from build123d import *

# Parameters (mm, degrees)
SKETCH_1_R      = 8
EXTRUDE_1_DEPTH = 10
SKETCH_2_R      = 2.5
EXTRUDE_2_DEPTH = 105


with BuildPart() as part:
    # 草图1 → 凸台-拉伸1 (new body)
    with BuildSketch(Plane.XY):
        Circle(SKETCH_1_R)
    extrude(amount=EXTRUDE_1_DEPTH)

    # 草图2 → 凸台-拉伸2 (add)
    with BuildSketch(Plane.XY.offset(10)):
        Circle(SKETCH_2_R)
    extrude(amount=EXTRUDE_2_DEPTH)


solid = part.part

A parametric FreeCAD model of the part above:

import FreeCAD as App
import Part
import Sketcher
Q = App.Units.Quantity

doc = App.newDocument("Part")
body = doc.addObject("PartDesign::Body", "Body")

# Sketch on XY plane
sketch1 = doc.addObject("Sketcher::SketchObject", "Sketch")
body.addObject(sketch1)
sketch1.AttachmentSupport = (doc.XY_Plane, [""])
sketch1.MapMode = "FlatFace"
sketch1.addGeometry(Part.Circle(App.Vector(0, 0, 0), App.Vector(0, 0, 1), 8), False)
sketch1.addConstraint(Sketcher.Constraint("Coincident", 0, 3, -1, 1))
sketch1.addConstraint(Sketcher.Constraint("Diameter", 0, Q("16 mm")))
pad1 = doc.addObject("PartDesign::Pad", "Pad")
body.addObject(pad1)
pad1.Profile = sketch1
pad1.Length = 10

# Sketch on XY plane
sketch2 = doc.addObject("Sketcher::SketchObject", "Sketch001")
body.addObject(sketch2)
sketch2.AttachmentSupport = (doc.XY_Plane, [""])
sketch2.MapMode = "FlatFace"
sketch2.AttachmentOffset = App.Placement(App.Vector(0, 0, 10), App.Rotation())
sketch2.addGeometry(Part.Circle(App.Vector(0, 0, 0), App.Vector(0, 0, 1), 2.5), False)
sketch2.addConstraint(Sketcher.Constraint("Coincident", 0, 3, -1, 1))
sketch2.addConstraint(Sketcher.Constraint("Diameter", 0, Q("5 mm")))
pad2 = doc.addObject("PartDesign::Pad", "Pad001")
body.addObject(pad2)
pad2.Profile = sketch2
pad2.Length = 105

doc.recompute()
